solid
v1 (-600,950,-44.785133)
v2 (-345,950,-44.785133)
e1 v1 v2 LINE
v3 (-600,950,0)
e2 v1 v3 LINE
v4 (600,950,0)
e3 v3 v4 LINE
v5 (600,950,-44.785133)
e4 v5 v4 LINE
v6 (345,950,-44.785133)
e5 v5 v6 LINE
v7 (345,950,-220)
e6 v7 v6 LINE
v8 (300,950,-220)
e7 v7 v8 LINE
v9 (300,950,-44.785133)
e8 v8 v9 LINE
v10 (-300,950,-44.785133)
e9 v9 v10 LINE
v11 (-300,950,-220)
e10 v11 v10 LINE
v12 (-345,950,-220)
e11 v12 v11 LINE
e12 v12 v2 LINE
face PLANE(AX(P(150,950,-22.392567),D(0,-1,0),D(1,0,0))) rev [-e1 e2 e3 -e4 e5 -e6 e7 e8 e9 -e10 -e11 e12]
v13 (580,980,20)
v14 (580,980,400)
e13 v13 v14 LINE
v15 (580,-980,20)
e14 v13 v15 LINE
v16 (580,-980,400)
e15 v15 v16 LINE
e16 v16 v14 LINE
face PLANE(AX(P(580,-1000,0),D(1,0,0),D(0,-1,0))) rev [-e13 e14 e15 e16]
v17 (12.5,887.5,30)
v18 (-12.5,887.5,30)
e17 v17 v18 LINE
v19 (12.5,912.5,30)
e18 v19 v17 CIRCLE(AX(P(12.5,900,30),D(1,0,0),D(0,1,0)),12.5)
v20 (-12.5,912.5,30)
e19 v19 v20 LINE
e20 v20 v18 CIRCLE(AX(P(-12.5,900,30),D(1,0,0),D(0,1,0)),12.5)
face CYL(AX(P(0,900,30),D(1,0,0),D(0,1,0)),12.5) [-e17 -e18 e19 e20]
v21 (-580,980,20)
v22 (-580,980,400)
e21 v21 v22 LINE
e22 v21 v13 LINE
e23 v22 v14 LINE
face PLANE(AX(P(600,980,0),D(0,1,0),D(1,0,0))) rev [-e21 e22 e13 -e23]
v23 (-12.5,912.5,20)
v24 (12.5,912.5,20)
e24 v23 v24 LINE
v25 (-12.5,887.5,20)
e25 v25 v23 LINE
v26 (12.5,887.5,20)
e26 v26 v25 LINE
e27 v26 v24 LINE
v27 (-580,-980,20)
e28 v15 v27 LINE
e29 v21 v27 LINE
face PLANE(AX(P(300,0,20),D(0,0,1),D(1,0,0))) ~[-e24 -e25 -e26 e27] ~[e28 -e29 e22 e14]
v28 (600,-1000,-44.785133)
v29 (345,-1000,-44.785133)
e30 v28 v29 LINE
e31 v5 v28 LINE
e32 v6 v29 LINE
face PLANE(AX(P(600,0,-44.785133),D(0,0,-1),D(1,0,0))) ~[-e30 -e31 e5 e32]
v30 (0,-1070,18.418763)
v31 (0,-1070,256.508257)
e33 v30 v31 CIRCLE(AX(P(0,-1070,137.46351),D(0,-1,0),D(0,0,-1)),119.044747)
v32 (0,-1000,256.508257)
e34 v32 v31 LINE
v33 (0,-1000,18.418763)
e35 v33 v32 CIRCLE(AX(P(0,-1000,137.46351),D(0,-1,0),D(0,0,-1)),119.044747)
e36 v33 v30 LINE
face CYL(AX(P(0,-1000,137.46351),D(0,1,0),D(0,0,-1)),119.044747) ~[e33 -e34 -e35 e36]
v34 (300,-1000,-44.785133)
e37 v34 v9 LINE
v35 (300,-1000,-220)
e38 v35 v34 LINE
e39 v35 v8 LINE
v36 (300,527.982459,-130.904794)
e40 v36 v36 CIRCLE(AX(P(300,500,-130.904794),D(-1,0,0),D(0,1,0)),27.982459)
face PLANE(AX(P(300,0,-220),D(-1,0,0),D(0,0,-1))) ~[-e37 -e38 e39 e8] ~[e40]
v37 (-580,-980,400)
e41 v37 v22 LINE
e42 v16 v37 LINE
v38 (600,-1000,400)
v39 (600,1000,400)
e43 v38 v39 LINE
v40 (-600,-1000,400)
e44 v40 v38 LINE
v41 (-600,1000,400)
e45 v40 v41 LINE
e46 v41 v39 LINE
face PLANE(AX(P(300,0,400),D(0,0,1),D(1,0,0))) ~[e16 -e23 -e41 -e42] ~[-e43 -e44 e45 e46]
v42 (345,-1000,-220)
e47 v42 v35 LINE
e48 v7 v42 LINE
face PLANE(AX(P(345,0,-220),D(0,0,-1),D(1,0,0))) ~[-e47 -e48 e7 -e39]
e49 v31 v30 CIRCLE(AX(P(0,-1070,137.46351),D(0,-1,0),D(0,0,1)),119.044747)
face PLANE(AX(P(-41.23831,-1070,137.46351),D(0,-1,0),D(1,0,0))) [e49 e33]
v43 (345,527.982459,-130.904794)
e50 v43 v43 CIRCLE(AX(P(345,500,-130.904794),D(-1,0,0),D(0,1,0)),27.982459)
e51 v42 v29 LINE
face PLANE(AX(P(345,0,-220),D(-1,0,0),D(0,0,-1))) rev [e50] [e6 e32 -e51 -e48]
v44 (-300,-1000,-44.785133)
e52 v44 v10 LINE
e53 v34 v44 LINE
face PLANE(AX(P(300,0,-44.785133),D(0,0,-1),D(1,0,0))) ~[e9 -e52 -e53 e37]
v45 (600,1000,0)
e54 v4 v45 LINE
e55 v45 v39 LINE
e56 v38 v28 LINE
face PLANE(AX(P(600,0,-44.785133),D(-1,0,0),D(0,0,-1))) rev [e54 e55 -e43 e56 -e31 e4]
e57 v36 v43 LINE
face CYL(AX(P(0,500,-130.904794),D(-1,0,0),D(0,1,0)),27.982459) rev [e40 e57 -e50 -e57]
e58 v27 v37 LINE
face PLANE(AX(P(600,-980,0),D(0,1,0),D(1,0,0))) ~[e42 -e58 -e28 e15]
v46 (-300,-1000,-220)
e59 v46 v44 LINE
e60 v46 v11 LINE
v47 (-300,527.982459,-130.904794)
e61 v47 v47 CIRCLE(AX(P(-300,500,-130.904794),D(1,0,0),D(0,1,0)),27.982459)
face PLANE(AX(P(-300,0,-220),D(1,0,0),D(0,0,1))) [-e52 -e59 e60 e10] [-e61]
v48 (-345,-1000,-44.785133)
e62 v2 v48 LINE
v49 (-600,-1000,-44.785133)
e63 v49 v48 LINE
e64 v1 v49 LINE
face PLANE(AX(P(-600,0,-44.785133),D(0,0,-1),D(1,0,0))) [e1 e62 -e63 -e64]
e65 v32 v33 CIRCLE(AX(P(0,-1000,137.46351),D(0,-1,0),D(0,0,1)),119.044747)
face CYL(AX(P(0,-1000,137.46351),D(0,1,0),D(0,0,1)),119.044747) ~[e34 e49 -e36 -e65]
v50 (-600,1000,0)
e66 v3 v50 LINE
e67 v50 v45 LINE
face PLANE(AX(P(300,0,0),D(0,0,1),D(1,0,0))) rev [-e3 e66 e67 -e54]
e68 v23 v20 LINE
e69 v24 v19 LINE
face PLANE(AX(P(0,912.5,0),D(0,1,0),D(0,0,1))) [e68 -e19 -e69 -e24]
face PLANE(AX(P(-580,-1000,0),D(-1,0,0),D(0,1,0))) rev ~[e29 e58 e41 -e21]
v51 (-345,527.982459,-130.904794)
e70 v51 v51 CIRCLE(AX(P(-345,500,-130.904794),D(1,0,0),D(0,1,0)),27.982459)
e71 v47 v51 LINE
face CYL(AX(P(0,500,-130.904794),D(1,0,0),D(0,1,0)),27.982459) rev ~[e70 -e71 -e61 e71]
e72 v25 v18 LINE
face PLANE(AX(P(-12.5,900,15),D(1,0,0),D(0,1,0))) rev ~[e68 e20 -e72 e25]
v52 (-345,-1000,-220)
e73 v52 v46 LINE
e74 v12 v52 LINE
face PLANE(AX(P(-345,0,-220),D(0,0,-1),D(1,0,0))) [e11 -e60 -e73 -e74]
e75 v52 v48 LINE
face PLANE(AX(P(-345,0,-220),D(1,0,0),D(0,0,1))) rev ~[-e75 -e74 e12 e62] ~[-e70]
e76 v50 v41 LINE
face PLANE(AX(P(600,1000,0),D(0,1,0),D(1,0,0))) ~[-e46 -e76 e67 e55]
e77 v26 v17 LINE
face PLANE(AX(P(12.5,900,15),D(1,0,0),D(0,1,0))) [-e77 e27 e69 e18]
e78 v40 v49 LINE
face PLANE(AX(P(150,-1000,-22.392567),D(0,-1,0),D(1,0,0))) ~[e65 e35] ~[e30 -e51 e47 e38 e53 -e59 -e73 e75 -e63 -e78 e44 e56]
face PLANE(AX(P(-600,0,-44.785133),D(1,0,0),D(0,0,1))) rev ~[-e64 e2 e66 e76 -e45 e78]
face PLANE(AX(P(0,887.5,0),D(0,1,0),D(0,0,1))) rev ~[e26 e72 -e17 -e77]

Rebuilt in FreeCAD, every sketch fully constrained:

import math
import FreeCAD as App
import Part
import Sketcher


def faces_at(feature, points):
    """Names of the faces that lie closest to the given points."""
    faces = feature.Shape.Faces
    near = lambda p: min(range(len(faces)), key=lambda i: faces[i].distToShape(Part.Vertex(*p))[0])
    return sorted({f"Face{near(p) + 1}" for p in points})

doc = App.newDocument("Part")
params = doc.addObject("Spreadsheet::Sheet", "Params")
for row, (alias, value) in enumerate([
    ("sketch1_width", "600 mm"),
    ("sketch1_height", "2000 mm"),
    ("pad1_length", "400 mm"),
    ("thickness_wall", "20 mm"),
    ("pad2_length", "70 mm"),
    ("sketch3_radius", "12.5 mm"),
    ("sketch3_height", "30 mm"),
    ("pad3_length", "25 mm"),
    ("sketch4_width", "600 mm"),
    ("sketch4_width2", "255 mm"),
    ("sketch4_width3", "45 mm"),
    ("pad4_length", "1000 mm"),
    ("pad4_length2", "950 mm"),
], start=1):
    params.set(f"A{row}", alias)
    params.set(f"B{row}", "=" + value)
    params.setAlias(f"B{row}", alias)

body = doc.addObject("PartDesign::Body", "Body")

# Sketch on XY plane
sketch1 = body.newObject("Sketcher::SketchObject", "Sketch")
sketch1.AttachmentSupport = (doc.getObject("XY_Plane"), [""])
sketch1.MapMode = "FlatFace"
sketch1.addGeometry(Part.LineSegment(App.Vector(-600, 1000, 0), App.Vector(-600, -1000, 0)), False)
sketch1.addGeometry(Part.LineSegment(App.Vector(-600, -1000, 0), App.Vector(0, -1000, 0)), False)
sketch1.addGeometry(Part.LineSegment(App.Vector(0, -1000, 0), App.Vector(0, 1000, 0)), False)
sketch1.addGeometry(Part.LineSegment(App.Vector(0, 1000, 0), App.Vector(-600, 1000, 0)), False)
sketch1.addConstraint(Sketcher.Constraint("Coincident", 0, 2, 1, 1))
sketch1.addConstraint(Sketcher.Constraint("Coincident", 1, 2, 2, 1))
sketch1.addConstraint(Sketcher.Constraint("Coincident", 2, 2, 3, 1))
sketch1.addConstraint(Sketcher.Constraint("Coincident", 3, 2, 0, 1))
sketch1.addConstraint(Sketcher.Constraint("Vertical", 0))
sketch1.addConstraint(Sketcher.Constraint("Horizontal", 1))
sketch1.addConstraint(Sketcher.Constraint("Vertical", 2))
sketch1.addConstraint(Sketcher.Constraint("Horizontal", 3))
sketch1.addConstraint(Sketcher.Constraint("Symmetric", 1, 2, 2, 2, -1, 1))
sketch1.addConstraint(Sketcher.Constraint("DistanceX", 1, 1, 1, 2, 600.0))
sketch1.addConstraint(Sketcher.Constraint("DistanceY", 0, 2, 0, 1, 2000.0))
sketch1.setExpression("Constraints[9]", "Params.sketch1_width")
sketch1.setExpression("Constraints[10]", "Params.sketch1_height")
pad1 = body.newObject("PartDesign::Pad", "Pad")
pad1.Profile = sketch1
pad1.setExpression("Length", "Params.pad1_length")
doc.recompute()

thickness = body.newObject("PartDesign::Thickness", "Thickness")
thickness.Base = (pad1, faces_at(pad1, [(-300, 0, 400), (0, 0, 200)]))
thickness.setExpression("Value", "Params.thickness_wall")
thickness.Reversed = True
thickness.Join = "Arc"

# Sketch on XZ plane
sketch2 = body.newObject("Sketcher::SketchObject", "Sketch001")
sketch2.AttachmentSupport = (doc.getObject("XZ_Plane"), [""])
sketch2.MapMode = "FlatFace"
sketch2.AttachmentOffset = App.Placement(App.Vector(0, 0, 1000), App.Rotation())
sketch2.addGeometry(Part.ArcOfCircle(Part.Circle(App.Vector(0, 137, 0), App.Vector(0, 0, 1), 119), math.radians(90), math.radians(270)), False)
sketch2.addGeometry(Part.ArcOfCircle(Part.Circle(App.Vector(0, 137, 0), App.Vector(0, 0, 1), 119), math.radians(-90), math.radians(90)), False)
sketch2.addConstraint(Sketcher.Constraint("Tangent", 0, 1, 1, 2))
sketch2.addConstraint(Sketcher.Constraint("Coincident", 1, 1, 0, 2))
sketch2.addConstraint(Sketcher.Constraint("PointOnObject", 0, 3, -2))
sketch2.addConstraint(Sketcher.Constraint("PointOnObject", 0, 1, -2))
sketch2.addConstraint(Sketcher.Constraint("PointOnObject", 1, 1, -2))
sketch2.addConstraint(Sketcher.Constraint("Radius", 0, 119.044747))
sketch2.addConstraint(Sketcher.Constraint("DistanceY", -1, 1, 0, 3, 137.46351))
pad2 = body.newObject("PartDesign::Pad", "Pad001")
pad2.Profile = sketch2
pad2.setExpression("Length", "Params.pad2_length")

# Sketch on YZ plane
sketch3 = body.newObject("Sketcher::SketchObject", "Sketch002")
sketch3.AttachmentSupport = (doc.getObject("YZ_Plane"), [""])
sketch3.MapMode = "FlatFace"
sketch3.addGeometry(Part.LineSegment(App.Vector(888, 30, 0), App.Vector(888, 0, 0)), False)
sketch3.addGeometry(Part.LineSegment(App.Vector(888, 0, 0), App.Vector(912, 0, 0)), False)
sketch3.addGeometry(Part.LineSegment(App.Vector(912, 0, 0), App.Vector(912, 30, 0)), False)
sketch3.addGeometry(Part.ArcOfCircle(Part.Circle(App.Vector(900, 30, 0), App.Vector(0, 0, 1), 12), math.radians(0), math.radians(180)), False)
sketch3.addConstraint(Sketcher.Constraint("Coincident", 0, 2, 1, 1))
sketch3.addConstraint(Sketcher.Constraint("Coincident", 1, 2, 2, 1))
sketch3.addConstraint(Sketcher.Constraint("Tangent", 2, 2, 3, 1))
sketch3.addConstraint(Sketcher.Constraint("Tangent", 3, 2, 0, 1))
sketch3.addConstraint(Sketcher.Constraint("Vertical", 0))
sketch3.addConstraint(Sketcher.Constraint("Horizontal", 1))
sketch3.addConstraint(Sketcher.Constraint("Vertical", 2))
sketch3.addConstraint(Sketcher.Constraint("PointOnObject", 0, 2, -1))
sketch3.addConstraint(Sketcher.Constraint("Radius", 3, 12.5))
sketch3.addConstraint(Sketcher.Constraint("DistanceY", 0, 2, 0, 1, 30.0))
sketch3.addConstraint(Sketcher.Constraint("DistanceX", -1, 1, 3, 3, 900.0))
sketch3.setExpression("Constraints[8]", "Params.sketch3_radius")
sketch3.setExpression("Constraints[9]", "Params.sketch3_height")
pad3 = body.newObject("PartDesign::Pad", "Pad002")
pad3.Profile = sketch3
pad3.setExpression("Length", "Params.pad3_length")
pad3.Midplane = True

# Sketch on XZ plane
sketch4 = body.newObject("Sketcher::SketchObject", "Sketch003")
sketch4.AttachmentSupport = (doc.getObject("XZ_Plane"), [""])
sketch4.MapMode = "FlatFace"
sketch4.addGeometry(Part.LineSegment(App.Vector(0, -45, 0), App.Vector(0, 0, 0)), False)
sketch4.addGeometry(Part.LineSegment(App.Vector(0, 0, 0), App.Vector(-600, 0, 0)), False)
sketch4.addGeometry(Part.LineSegment(App.Vector(-600, 0, 0), App.Vector(-600, -45, 0)), False)
sketch4.addGeometry(Part.LineSegment(App.Vector(-600, -45, 0), App.Vector(-345, -45, 0)), False)
sketch4.addGeometry(Part.LineSegment(App.Vector(-345, -45, 0), App.Vector(-345, -220, 0)), False)
sketch4.addGeometry(Part.LineSegment(App.Vector(-345, -220, 0), App.Vector(-300, -220, 0)), False)
sketch4.addGeometry(Part.LineSegment(App.Vector(-300, -220, 0), App.Vector(-300, -45, 0)), False)
sketch4.addGeometry(Part.LineSegment(App.Vector(-300, -45, 0), App.Vector(0, -45, 0)), False)
sketch4.addConstraint(Sketcher.Constraint("Coincident", 0, 2, 1, 1))
sketch4.addConstraint(Sketcher.Constraint("Coincident", 1, 2, 2, 1))
sketch4.addConstraint(Sketcher.Constraint("Coincident", 2, 2, 3, 1))
sketch4.addConstraint(Sketcher.Constraint("Coincident", 3, 2, 4, 1))
sketch4.addConstraint(Sketcher.Constraint("Coincident", 4, 2, 5, 1))
sketch4.addConstraint(Sketcher.Constraint("Coincident", 5, 2, 6, 1))
sketch4.addConstraint(Sketcher.Constraint("Coincident", 6, 2, 7, 1))
sketch4.addConstraint(Sketcher.Constraint("Coincident", 7, 2, 0, 1))
sketch4.addConstraint(Sketcher.Constraint("Vertical", 0))
sketch4.addConstraint(Sketcher.Constraint("Horizontal", 1))
sketch4.addConstraint(Sketcher.Constraint("Vertical", 2))
sketch4.addConstraint(Sketcher.Constraint("Horizontal", 3))
sketch4.addConstraint(Sketcher.Constraint("Vertical", 4))
sketch4.addConstraint(Sketcher.Constraint("Horizontal", 5))
sketch4.addConstraint(Sketcher.Constraint("Vertical", 6))
sketch4.addConstraint(Sketcher.Constraint("Horizontal", 7))
sketch4.addConstraint(Sketcher.Constraint("Coincident", 0, 2, -1, 1))
sketch4.addConstraint(Sketcher.Constraint("Horizontal", 3, 2, 6, 2))
sketch4.addConstraint(Sketcher.Constraint("DistanceX", 1, 2, 1, 1, 600.0))
sketch4.addConstraint(Sketcher.Constraint("DistanceX", 3, 1, 3, 2, 255.0))
sketch4.addConstraint(Sketcher.Constraint("DistanceX", 5, 1, 5, 2, 45.0))
sketch4.addConstraint(Sketcher.Constraint("DistanceY", 4, 2, -1, 1, 220.0))
sketch4.addConstraint(Sketcher.Constraint("DistanceY", 0, 1, 0, 2, 44.785133))
sketch4.setExpression("Constraints[18]", "Params.sketch4_width")
sketch4.setExpression("Constraints[19]", "Params.sketch4_width2")
sketch4.setExpression("Constraints[20]", "Params.sketch4_width3")
pad4 = body.newObject("PartDesign::Pad", "Pad003")
pad4.Profile = sketch4
pad4.Type = "TwoLengths"
pad4.setExpression("Length", "Params.pad4_length")
pad4.setExpression("Length2", "Params.pad4_length2")
body2 = doc.addObject("PartDesign::Body", "Body001")
doc.recompute()

body2.BaseFeature = body
doc.recompute()

mirroring = doc.addObject("Part::Mirroring", "Mirroring")
mirroring.Source = body
mirroring.Base = App.Vector(0, 0, 0)
mirroring.Normal = App.Vector(1, 0, 0)
body3 = doc.addObject("PartDesign::Body", "Body002")
body3.BaseFeature = mirroring
boolean = body2.newObject("PartDesign::Boolean", "Boolean")
boolean.Type = "Fuse"
boolean.addObjects([body3])
doc.recompute()

# Sketch on YZ plane
sketch5 = body2.newObject("Sketcher::SketchObject", "Sketch004")
sketch5.AttachmentSupport = (doc.getObject("YZ_Plane001"), [""])
sketch5.MapMode = "FlatFace"
sketch5.addGeometry(Part.Circle(App.Vector(500, -131, 0), App.Vector(0, 0, 1), 28), False)
sketch5.addConstraint(Sketcher.Constraint("DistanceX", -1, 1, 0, 3, 500.0))
sketch5.addConstraint(Sketcher.Constraint("Diameter", 0, 55.964919))
sketch5.addConstraint(Sketcher.Constraint("DistanceY", 0, 3, -1, 1, 130.904794))
pocket1 = body2.newObject("PartDesign::Pocket", "Pocket")
pocket1.Profile = sketch5
pocket1.Type = "ThroughAll"
pocket1.Midplane = True
mirroring.Visibility = False

doc.recompute()
